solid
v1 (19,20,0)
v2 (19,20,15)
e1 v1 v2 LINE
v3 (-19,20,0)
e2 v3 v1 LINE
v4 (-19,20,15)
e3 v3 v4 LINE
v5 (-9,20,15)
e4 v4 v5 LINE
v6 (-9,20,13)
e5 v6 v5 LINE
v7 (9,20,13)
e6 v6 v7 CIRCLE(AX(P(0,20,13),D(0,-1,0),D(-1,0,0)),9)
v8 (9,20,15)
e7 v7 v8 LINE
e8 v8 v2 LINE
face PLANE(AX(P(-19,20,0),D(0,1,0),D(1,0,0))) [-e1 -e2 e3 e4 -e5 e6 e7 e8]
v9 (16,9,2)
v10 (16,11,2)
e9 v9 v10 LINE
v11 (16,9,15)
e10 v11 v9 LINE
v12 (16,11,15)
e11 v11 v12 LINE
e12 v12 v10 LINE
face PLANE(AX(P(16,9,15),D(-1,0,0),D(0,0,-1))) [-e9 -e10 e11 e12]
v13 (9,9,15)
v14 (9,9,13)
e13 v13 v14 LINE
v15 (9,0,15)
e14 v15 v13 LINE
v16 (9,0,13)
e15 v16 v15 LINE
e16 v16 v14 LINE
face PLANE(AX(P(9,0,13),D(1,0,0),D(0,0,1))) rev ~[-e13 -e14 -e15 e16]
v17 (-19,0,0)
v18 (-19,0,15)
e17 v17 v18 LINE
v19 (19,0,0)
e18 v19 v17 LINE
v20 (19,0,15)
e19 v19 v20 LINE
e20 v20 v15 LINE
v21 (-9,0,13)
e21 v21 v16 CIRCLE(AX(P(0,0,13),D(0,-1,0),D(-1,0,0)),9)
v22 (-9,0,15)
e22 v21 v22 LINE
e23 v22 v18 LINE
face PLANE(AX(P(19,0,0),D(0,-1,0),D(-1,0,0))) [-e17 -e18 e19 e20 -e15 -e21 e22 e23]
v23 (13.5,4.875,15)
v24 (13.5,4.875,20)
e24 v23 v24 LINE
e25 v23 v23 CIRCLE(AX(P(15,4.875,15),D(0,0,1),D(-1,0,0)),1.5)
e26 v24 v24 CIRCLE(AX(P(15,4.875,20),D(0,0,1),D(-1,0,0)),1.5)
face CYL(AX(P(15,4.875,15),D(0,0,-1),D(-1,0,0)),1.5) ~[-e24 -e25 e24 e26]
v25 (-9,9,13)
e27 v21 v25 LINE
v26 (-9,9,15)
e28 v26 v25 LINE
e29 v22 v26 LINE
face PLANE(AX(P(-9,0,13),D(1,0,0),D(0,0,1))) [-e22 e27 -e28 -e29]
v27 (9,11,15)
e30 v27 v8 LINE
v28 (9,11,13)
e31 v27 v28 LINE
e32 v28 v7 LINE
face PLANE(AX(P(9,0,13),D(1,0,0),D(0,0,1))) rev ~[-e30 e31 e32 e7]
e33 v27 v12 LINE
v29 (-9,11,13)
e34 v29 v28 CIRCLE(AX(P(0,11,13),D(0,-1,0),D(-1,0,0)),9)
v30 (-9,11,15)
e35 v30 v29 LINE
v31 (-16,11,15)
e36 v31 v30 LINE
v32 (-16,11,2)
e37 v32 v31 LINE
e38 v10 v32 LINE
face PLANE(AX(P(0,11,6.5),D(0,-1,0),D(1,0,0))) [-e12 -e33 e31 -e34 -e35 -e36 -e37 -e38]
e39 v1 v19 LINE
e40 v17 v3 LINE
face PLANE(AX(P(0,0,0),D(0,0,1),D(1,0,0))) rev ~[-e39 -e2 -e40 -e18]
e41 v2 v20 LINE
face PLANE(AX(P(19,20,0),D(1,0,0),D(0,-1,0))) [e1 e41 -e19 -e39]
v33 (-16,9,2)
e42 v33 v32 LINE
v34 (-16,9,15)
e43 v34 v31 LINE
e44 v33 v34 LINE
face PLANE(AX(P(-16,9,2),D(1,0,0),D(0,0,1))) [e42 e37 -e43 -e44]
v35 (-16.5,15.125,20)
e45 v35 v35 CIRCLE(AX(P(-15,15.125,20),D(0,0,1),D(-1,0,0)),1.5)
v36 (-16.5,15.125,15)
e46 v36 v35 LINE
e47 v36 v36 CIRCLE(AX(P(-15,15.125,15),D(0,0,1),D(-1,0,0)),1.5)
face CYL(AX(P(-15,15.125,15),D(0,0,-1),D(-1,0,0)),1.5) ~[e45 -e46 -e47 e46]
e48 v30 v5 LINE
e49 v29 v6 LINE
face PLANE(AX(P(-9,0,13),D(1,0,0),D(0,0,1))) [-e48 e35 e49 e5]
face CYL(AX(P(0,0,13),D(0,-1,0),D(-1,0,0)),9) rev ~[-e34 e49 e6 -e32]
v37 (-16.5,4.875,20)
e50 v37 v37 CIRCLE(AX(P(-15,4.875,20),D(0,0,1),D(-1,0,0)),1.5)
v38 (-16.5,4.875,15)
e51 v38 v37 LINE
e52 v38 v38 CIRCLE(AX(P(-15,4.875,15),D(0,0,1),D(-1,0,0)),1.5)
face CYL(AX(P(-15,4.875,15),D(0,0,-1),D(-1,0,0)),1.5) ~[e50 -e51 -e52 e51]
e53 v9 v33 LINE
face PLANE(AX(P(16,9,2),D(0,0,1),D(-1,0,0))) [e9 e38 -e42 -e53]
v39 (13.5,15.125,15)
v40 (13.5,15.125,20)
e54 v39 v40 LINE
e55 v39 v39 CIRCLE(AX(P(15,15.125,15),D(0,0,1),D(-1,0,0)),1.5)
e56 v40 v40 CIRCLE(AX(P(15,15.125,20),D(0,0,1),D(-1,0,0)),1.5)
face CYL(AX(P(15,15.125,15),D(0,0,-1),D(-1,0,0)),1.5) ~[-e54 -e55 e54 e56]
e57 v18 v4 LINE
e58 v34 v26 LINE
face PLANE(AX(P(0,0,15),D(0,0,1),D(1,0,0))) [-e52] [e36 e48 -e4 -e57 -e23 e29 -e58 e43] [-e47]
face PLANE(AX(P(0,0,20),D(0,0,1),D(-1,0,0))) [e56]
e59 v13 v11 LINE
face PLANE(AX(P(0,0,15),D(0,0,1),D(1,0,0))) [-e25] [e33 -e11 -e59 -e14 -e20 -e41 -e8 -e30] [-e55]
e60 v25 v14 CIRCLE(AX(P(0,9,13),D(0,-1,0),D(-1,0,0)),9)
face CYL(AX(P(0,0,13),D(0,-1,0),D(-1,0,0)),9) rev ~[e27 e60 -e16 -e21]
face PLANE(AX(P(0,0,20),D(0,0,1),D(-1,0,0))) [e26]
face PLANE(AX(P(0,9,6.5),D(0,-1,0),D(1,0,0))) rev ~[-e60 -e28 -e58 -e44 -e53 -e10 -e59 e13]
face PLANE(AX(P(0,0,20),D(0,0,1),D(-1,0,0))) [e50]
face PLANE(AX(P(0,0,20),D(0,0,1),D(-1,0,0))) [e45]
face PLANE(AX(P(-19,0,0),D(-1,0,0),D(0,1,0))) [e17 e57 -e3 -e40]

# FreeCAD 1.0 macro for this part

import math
import FreeCAD as App
import Part
import Sketcher

doc = App.newDocument("Part")
params = doc.addObject("Spreadsheet::Sheet", "Params")
for row, (alias, value) in enumerate([
    ("sketch1_width", "38 mm"),
    ("sketch1_height", "20 mm"),
    ("pad1_length", "15 mm"),
    ("sketch2_radius", "9 mm"),
    ("sketch2_height", "2 mm"),
    ("pocket1_length", "20 mm"),
    ("sketch3_width", "32 mm"),
    ("sketch3_height", "13 mm"),
    ("pocket2_length", "2 mm"),
    ("sketch4_diameter", "3 mm"),
    ("pad2_length", "5 mm"),
], start=1):
    params.set(f"A{row}", alias)
    params.set(f"B{row}", "=" + value)
    params.setAlias(f"B{row}", alias)

body = doc.addObject("PartDesign::Body", "Body")

sketch1 = body.newObject("Sketcher::SketchObject", "Sketch")
sketch1.AttachmentSupport = (doc.getObject("XY_Plane"), [""])
sketch1.MapMode = "FlatFace"
sketch1.addGeometry(Part.LineSegment(App.Vector(19, 20, 0), App.Vector(-19, 20, 0)), False)
sketch1.addGeometry(Part.LineSegment(App.Vector(-19, 20, 0), App.Vector(-19, 0, 0)), False)
sketch1.addGeometry(Part.LineSegment(App.Vector(-19, 0, 0), App.Vector(19, 0, 0)), False)
sketch1.addGeometry(Part.LineSegment(App.Vector(19, 0, 0), App.Vector(19, 20, 0)), False)
sketch1.addConstraint(Sketcher.Constraint("Coincident", 0, 2, 1, 1))
sketch1.addConstraint(Sketcher.Constraint("Coincident", 1, 2, 2, 1))
sketch1.addConstraint(Sketcher.Constraint("Coincident", 2, 2, 3, 1))
sketch1.addConstraint(Sketcher.Constraint("Coincident", 3, 2, 0, 1))
sketch1.addConstraint(Sketcher.Constraint("Horizontal", 0))
sketch1.addConstraint(Sketcher.Constraint("Vertical", 1))
sketch1.addConstraint(Sketcher.Constraint("Horizontal", 2))
sketch1.addConstraint(Sketcher.Constraint("Vertical", 3))
sketch1.addConstraint(Sketcher.Constraint("Symmetric", 1, 2, 2, 2, -1, 1))
sketch1.addConstraint(Sketcher.Constraint("DistanceX", 0, 2, 0, 1, 38.0))
sketch1.addConstraint(Sketcher.Constraint("DistanceY", 1, 2, 1, 1, 20.0))
sketch1.setExpression("Constraints[9]", "Params.sketch1_width")
sketch1.setExpression("Constraints[10]", "Params.sketch1_height")
pad1 = body.newObject("PartDesign::Pad", "Pad")
pad1.Profile = sketch1
pad1.setExpression("Length", "Params.pad1_length")

sketch2 = body.newObject("Sketcher::SketchObject", "Sketch001")
sketch2.AttachmentSupport = (doc.getObject("XZ_Plane"), [""])
sketch2.MapMode = "FlatFace"
sketch2.addGeometry(Part.LineSegment(App.Vector(9, 15, 0), App.Vector(-9, 15, 0)), False)
sketch2.addGeometry(Part.LineSegment(App.Vector(-9, 15, 0), App.Vector(-9, 13, 0)), False)
sketch2.addGeometry(Part.ArcOfCircle(Part.Circle(App.Vector(0, 13, 0), App.Vector(0, 0, 1), 9), math.radians(180), math.radians(360)), False)
sketch2.addGeometry(Part.LineSegment(App.Vector(9, 13, 0), App.Vector(9, 15, 0)), False)
sketch2.addConstraint(Sketcher.Constraint("Coincident", 0, 2, 1, 1))
sketch2.addConstraint(Sketcher.Constraint("Tangent", 1, 2, 2, 1))
sketch2.addConstraint(Sketcher.Constraint("Tangent", 2, 2, 3, 1))
sketch2.addConstraint(Sketcher.Constraint("Coincident", 3, 2, 0, 1))
sketch2.addConstraint(Sketcher.Constraint("Horizontal", 0))
sketch2.addConstraint(Sketcher.Constraint("Vertical", 1))
sketch2.addConstraint(Sketcher.Constraint("Vertical", 3))
sketch2.addConstraint(Sketcher.Constraint("PointOnObject", 2, 3, -2))
sketch2.addConstraint(Sketcher.Constraint("Radius", 2, 9.0))
sketch2.addConstraint(Sketcher.Constraint("DistanceY", 1, 2, 1, 1, 2.0))
sketch2.addConstraint(Sketcher.Constraint("DistanceY", -1, 1, 2, 3, 13.0))
sketch2.setExpression("Constraints[8]", "Params.sketch2_radius")
sketch2.setExpression("Constraints[9]", "Params.sketch2_height")
pocket1 = body.newObject("PartDesign::Pocket", "Pocket")
pocket1.Profile = sketch2
pocket1.setExpression("Length", "Params.pocket1_length")

sketch3 = body.newObject("Sketcher::SketchObject", "Sketch002")
sketch3.AttachmentSupport = (doc.getObject("XZ_Plane"), [""])
sketch3.MapMode = "FlatFace"
sketch3.AttachmentOffset = App.Placement(App.Vector(0, 0, -9), App.Rotation())
sketch3.addGeometry(Part.LineSegment(App.Vector(16, 15, 0), App.Vector(-16, 15, 0)), False)
sketch3.addGeometry(Part.LineSegment(App.Vector(-16, 15, 0), App.Vector(-16, 2, 0)), False)
sketch3.addGeometry(Part.LineSegment(App.Vector(-16, 2, 0), App.Vector(16, 2, 0)), False)
sketch3.addGeometry(Part.LineSegment(App.Vector(16, 2, 0), App.Vector(16, 15, 0)), False)
sketch3.addConstraint(Sketcher.Constraint("Coincident", 0, 2, 1, 1))
sketch3.addConstraint(Sketcher.Constraint("Coincident", 1, 2, 2, 1))
sketch3.addConstraint(Sketcher.Constraint("Coincident", 2, 2, 3, 1))
sketch3.addConstraint(Sketcher.Constraint("Coincident", 3, 2, 0, 1))
sketch3.addConstraint(Sketcher.Constraint("Horizontal", 0))
sketch3.addConstraint(Sketcher.Constraint("Vertical", 1))
sketch3.addConstraint(Sketcher.Constraint("Horizontal", 2))
sketch3.addConstraint(Sketcher.Constraint("Vertical", 3))
sketch3.addConstraint(Sketcher.Constraint("DistanceX", 0, 2, 0, 1, 32.0))
sketch3.addConstraint(Sketcher.Constraint("DistanceY", 1, 2, 1, 1, 13.0))
sketch3.addConstraint(Sketcher.Constraint("DistanceX", 0, 2, -1, 1, 16.0))
sketch3.addConstraint(Sketcher.Constraint("DistanceY", -1, 1, 0, 2, 15.0))
sketch3.setExpression("Constraints[8]", "Params.sketch3_width")
sketch3.setExpression("Constraints[9]", "Params.sketch3_height")
pocket2 = body.newObject("PartDesign::Pocket", "Pocket001")
pocket2.Profile = sketch3
pocket2.setExpression("Length", "Params.pocket2_length")

sketch4 = body.newObject("Sketcher::SketchObject", "Sketch003")
sketch4.AttachmentSupport = (doc.getObject("XY_Plane"), [""])
sketch4.MapMode = "FlatFace"
sketch4.AttachmentOffset = App.Placement(App.Vector(0, 0, 15), App.Rotation())
sketch4.addGeometry(Part.Circle(App.Vector(15, 15.125, 0), App.Vector(0, 0, 1), 1.5), False)
sketch4.addGeometry(Part.Circle(App.Vector(15, 4.875, 0), App.Vector(0, 0, 1), 1.5), False)
sketch4.addGeometry(Part.Circle(App.Vector(-15, 15.125, 0), App.Vector(0, 0, 1), 1.5), False)
sketch4.addGeometry(Part.Circle(App.Vector(-15, 4.875, 0), App.Vector(0, 0, 1), 1.5), False)
sketch4.addConstraint(Sketcher.Constraint("Equal", 0, 1))
sketch4.addConstraint(Sketcher.Constraint("Equal", 1, 2))
sketch4.addConstraint(Sketcher.Constraint("Equal", 2, 3))
sketch4.addConstraint(Sketcher.Constraint("Symmetric", 0, 3, 2, 3, -2))
sketch4.addConstraint(Sketcher.Constraint("Symmetric", 1, 3, 3, 3, -2))
sketch4.addConstraint(Sketcher.Constraint("Vertical", 0, 3, 1, 3))
sketch4.addConstraint(Sketcher.Constraint("Diameter", 0, 3.0))
sketch4.addConstraint(Sketcher.Constraint("DistanceY", 1, 3, 0, 3, 10.25))
sketch4.addConstraint(Sketcher.Constraint("DistanceX", -1, 1, 0, 3, 15.0))
sketch4.addConstraint(Sketcher.Constraint("DistanceY", -1, 1, 1, 3, 4.875))
sketch4.setExpression("Constraints[6]", "Params.sketch4_diameter")
pad2 = body.newObject("PartDesign::Pad", "Pad001")
pad2.Profile = sketch4
pad2.setExpression("Length", "Params.pad2_length")

doc.recompute()
